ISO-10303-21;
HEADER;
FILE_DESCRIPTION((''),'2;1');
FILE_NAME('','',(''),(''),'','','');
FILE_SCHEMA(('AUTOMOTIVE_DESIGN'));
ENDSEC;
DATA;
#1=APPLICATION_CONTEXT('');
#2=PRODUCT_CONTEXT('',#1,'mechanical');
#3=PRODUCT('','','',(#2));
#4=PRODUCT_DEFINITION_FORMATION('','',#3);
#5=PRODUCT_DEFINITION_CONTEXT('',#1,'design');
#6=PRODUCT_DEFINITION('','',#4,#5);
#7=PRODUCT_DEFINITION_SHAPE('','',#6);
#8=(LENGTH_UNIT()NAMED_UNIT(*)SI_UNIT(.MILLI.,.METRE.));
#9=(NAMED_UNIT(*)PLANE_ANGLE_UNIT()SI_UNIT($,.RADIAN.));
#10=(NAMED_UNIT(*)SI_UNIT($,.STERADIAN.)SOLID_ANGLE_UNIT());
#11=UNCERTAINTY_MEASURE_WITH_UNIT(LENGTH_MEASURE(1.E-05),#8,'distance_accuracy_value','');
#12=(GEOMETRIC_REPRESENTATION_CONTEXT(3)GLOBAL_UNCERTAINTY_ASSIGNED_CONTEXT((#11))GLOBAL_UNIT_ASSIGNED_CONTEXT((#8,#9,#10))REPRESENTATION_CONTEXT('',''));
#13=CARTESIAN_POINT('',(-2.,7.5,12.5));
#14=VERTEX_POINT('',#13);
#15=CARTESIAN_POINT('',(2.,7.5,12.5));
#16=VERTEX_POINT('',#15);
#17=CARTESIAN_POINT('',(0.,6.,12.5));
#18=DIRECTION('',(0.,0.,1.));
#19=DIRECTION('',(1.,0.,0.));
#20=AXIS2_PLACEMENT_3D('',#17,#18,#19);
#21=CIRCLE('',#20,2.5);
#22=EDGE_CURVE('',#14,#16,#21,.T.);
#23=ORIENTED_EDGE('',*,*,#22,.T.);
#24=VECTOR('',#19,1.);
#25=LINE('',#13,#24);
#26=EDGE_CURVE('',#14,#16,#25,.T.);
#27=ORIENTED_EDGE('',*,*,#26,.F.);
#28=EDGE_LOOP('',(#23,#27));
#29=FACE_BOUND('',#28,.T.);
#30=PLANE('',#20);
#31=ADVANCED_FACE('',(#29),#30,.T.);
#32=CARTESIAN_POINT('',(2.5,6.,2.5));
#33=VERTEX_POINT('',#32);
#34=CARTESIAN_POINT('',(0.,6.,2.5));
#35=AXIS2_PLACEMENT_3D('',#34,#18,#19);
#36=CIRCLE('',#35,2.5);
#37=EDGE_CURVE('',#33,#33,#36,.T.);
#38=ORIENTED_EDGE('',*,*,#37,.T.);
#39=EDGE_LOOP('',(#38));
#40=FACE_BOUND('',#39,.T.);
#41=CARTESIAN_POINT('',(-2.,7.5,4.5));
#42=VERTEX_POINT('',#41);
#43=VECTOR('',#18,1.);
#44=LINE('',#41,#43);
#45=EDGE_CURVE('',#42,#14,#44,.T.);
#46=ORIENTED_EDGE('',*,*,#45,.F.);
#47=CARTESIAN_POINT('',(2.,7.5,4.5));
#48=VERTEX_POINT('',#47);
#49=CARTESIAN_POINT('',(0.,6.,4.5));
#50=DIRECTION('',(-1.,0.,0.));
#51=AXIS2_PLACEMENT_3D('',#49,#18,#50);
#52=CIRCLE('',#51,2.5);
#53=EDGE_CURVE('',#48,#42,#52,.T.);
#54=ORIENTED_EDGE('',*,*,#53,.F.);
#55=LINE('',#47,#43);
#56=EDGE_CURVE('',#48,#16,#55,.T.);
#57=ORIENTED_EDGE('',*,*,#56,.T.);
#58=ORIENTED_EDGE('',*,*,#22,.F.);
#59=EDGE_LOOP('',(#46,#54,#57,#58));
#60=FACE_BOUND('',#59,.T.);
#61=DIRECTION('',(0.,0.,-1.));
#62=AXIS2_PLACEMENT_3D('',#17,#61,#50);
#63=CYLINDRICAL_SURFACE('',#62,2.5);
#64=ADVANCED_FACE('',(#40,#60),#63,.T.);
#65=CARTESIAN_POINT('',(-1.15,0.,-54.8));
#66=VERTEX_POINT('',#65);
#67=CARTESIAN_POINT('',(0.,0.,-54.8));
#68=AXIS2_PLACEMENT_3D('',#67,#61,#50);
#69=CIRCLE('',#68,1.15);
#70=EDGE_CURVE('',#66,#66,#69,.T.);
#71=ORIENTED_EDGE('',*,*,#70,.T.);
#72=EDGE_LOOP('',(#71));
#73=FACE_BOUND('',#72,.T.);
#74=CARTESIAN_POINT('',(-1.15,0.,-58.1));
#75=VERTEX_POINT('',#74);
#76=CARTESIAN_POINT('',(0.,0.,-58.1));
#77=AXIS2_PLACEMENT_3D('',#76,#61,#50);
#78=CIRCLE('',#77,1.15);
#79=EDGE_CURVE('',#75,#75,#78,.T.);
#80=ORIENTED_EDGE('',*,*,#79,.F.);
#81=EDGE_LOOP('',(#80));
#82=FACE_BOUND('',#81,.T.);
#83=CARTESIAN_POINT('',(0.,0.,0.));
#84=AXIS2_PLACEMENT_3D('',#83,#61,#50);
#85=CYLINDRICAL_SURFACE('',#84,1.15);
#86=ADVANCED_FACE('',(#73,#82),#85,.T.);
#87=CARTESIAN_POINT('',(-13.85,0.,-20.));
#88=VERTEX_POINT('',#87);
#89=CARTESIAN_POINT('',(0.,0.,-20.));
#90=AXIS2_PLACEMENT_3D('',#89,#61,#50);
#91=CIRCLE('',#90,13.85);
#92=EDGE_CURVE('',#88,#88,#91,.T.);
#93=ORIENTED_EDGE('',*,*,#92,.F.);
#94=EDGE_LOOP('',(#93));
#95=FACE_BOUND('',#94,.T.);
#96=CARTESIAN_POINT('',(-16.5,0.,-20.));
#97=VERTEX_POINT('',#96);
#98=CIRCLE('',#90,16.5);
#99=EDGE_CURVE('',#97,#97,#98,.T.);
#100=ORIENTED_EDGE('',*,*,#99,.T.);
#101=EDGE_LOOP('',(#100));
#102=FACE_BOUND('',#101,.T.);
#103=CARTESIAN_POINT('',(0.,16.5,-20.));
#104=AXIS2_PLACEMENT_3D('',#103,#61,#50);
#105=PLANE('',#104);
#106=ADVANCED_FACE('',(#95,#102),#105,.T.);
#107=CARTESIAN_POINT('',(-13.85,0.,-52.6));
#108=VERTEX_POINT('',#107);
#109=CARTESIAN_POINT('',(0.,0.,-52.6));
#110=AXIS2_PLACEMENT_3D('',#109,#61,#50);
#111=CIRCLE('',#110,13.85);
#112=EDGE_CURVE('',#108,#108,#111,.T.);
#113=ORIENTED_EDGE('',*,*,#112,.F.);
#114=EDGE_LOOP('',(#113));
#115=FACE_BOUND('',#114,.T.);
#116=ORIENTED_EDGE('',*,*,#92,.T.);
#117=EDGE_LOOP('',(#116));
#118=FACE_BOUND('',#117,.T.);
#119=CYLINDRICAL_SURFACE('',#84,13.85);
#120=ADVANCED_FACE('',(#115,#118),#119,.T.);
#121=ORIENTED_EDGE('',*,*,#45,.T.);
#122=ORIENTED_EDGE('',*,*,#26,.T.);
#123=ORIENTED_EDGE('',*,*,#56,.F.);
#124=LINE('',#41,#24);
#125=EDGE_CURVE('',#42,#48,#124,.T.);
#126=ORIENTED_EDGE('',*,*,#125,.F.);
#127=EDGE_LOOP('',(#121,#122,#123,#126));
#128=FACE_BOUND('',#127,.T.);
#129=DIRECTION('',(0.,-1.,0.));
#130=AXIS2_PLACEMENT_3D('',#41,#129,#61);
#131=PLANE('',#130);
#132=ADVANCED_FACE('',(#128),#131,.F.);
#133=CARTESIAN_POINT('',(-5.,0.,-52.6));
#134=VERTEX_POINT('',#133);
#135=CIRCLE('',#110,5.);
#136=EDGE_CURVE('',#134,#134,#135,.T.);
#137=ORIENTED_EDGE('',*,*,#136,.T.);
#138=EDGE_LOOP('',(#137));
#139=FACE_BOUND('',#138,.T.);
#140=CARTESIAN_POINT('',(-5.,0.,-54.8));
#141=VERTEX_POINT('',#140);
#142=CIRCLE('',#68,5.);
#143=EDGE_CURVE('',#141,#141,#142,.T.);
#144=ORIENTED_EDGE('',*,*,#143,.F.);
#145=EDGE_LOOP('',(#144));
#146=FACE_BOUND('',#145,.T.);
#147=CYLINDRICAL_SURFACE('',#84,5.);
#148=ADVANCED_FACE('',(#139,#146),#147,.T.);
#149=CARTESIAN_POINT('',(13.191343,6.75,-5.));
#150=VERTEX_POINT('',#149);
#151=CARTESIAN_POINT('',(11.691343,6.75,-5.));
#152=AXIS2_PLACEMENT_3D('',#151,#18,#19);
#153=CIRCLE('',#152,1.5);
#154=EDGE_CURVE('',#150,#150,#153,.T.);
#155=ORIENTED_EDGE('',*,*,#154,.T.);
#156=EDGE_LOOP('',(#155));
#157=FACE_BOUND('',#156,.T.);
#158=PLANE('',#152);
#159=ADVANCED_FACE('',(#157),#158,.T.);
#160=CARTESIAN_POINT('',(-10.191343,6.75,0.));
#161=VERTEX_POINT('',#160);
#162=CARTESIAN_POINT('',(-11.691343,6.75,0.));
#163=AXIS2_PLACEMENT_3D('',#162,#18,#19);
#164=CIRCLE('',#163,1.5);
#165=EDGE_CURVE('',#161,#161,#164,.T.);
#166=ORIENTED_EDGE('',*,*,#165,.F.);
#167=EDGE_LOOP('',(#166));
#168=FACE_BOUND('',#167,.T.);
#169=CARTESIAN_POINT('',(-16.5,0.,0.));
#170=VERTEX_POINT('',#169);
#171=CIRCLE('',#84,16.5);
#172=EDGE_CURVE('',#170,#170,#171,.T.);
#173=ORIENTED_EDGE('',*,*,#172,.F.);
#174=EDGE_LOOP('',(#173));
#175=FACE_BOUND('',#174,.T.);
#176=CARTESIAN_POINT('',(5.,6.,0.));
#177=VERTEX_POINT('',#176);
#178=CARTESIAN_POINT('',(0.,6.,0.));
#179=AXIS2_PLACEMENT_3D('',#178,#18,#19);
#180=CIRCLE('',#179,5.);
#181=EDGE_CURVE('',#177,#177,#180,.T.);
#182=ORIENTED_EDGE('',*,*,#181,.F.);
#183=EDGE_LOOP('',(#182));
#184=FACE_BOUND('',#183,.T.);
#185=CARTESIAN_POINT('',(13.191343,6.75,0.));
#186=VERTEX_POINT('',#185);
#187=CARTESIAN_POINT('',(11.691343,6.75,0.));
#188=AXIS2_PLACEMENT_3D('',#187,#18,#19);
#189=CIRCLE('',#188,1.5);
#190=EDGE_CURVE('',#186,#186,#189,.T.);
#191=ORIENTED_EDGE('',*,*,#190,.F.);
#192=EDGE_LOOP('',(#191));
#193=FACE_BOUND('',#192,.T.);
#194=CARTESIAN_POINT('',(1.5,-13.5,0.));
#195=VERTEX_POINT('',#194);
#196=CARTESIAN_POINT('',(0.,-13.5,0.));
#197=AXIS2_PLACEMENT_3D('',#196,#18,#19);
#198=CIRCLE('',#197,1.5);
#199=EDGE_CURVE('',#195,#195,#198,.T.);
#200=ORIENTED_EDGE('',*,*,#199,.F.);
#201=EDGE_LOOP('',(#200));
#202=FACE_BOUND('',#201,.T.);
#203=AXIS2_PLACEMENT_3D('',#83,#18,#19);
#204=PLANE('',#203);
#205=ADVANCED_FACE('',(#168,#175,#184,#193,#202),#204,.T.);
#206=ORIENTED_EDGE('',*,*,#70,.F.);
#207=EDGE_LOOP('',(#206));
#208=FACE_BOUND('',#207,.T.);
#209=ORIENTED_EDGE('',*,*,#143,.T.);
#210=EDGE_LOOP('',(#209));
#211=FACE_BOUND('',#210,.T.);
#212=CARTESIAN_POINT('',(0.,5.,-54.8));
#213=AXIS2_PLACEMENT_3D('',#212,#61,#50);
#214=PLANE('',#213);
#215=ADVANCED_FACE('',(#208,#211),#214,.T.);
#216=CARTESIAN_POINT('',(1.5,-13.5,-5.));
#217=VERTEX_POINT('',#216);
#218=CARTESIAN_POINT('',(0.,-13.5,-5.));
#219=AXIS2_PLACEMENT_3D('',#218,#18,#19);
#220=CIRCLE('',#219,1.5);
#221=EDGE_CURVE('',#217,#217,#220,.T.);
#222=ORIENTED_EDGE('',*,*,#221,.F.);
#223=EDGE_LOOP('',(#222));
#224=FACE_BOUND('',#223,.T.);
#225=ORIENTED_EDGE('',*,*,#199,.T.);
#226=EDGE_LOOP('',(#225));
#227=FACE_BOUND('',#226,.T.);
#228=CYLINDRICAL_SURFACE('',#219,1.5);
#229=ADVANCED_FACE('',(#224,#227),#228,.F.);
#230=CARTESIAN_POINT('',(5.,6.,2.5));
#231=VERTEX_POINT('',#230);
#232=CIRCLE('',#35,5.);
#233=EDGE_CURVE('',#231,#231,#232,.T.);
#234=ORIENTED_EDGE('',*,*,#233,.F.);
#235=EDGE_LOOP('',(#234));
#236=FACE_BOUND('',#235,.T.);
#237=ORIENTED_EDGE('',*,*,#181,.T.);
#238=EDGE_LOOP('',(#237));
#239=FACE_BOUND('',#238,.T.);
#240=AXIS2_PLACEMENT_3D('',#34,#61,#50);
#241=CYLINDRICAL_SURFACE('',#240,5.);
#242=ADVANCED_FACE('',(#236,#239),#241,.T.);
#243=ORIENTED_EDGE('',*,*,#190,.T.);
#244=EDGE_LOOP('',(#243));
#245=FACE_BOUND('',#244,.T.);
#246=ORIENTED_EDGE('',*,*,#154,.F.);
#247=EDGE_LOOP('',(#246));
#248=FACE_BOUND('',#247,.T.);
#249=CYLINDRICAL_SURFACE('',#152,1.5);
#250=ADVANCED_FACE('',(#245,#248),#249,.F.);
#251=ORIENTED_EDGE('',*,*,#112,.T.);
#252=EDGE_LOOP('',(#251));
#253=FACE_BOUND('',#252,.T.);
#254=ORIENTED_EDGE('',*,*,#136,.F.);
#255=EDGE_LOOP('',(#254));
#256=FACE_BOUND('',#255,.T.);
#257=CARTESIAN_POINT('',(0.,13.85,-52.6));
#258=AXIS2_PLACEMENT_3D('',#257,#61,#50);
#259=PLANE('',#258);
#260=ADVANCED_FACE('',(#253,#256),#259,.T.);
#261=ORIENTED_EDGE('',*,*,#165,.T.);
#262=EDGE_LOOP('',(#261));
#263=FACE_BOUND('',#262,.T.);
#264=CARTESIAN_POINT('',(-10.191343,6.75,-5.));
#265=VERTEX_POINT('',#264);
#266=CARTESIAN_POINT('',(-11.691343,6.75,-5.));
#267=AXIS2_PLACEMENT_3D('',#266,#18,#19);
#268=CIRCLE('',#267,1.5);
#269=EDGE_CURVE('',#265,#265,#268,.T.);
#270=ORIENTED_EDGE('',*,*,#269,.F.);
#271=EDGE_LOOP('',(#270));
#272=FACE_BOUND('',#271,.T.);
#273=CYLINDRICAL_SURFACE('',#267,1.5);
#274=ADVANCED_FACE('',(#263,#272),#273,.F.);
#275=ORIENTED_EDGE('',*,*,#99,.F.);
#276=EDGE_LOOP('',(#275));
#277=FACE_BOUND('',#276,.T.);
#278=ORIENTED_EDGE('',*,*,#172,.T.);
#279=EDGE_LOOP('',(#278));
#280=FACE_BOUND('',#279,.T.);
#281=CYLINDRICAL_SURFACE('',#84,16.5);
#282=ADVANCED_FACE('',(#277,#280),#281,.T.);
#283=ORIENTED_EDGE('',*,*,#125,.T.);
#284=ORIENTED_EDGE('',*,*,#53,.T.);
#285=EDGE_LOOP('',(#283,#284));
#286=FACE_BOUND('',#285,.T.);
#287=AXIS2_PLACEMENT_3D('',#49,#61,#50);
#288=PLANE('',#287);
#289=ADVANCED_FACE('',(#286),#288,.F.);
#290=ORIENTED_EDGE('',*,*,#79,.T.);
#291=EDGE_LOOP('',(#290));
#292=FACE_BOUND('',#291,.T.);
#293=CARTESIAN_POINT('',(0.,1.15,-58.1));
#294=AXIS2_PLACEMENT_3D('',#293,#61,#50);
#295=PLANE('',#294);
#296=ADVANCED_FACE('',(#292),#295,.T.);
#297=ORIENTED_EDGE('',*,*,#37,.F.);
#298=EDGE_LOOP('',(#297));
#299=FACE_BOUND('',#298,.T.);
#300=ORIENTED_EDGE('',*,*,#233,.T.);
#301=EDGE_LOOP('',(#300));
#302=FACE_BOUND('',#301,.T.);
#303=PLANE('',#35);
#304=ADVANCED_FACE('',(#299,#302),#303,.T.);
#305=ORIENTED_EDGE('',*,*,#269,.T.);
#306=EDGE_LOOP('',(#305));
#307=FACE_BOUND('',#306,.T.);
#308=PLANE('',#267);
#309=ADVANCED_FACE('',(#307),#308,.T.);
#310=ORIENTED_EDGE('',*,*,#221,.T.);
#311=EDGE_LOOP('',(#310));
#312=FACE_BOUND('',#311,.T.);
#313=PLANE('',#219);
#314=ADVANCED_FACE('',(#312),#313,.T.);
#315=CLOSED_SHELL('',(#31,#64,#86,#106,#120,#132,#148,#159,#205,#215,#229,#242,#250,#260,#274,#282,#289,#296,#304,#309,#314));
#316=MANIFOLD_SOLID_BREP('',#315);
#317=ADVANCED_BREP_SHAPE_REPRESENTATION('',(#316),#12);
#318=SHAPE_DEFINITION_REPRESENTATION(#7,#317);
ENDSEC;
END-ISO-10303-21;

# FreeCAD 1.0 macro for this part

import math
import FreeCAD as App
import Part
import Sketcher
from FreeCAD import Vector
Q = App.Units.Quantity


def add_polygon(sketch, points):
    """Adds a closed chain of lines whose ends are joined by coincident constraints."""
    first, n = sketch.GeometryCount, len(points)
    for a, b in zip(points, points[1:] + points[:1]):
        sketch.addGeometry(Part.LineSegment(App.Vector(*a, 0), App.Vector(*b, 0)), False)
    for i in range(n):
        sketch.addConstraint(Sketcher.Constraint("Coincident", first + i, 2, first + (i + 1) % n, 1))

doc = App.newDocument("Part")
body = doc.addObject("PartDesign::Body", "Body")

# Sketch on YZ plane
sketch1 = body.newObject("Sketcher::SketchObject", "Sketch")
sketch1.AttachmentSupport = (doc.getObject("YZ_Plane"), [""])
sketch1.MapMode = "FlatFace"
add_polygon(sketch1, [(16.5, 0), (0, 0), (0, -58.1), (1.1, -58.1), (1.1, -54.8), (5, -54.8), (5, -52.6), (13.8, -52.6), (13.8, -20), (16.5, -20)])  # lines 0-9
sketch1.addConstraint(Sketcher.Constraint("Horizontal", 0))
sketch1.addConstraint(Sketcher.Constraint("Vertical", 1))
sketch1.addConstraint(Sketcher.Constraint("Horizontal", 2))
sketch1.addConstraint(Sketcher.Constraint("Vertical", 3))
sketch1.addConstraint(Sketcher.Constraint("Horizontal", 4))
sketch1.addConstraint(Sketcher.Constraint("Vertical", 5))
sketch1.addConstraint(Sketcher.Constraint("Horizontal", 6))
sketch1.addConstraint(Sketcher.Constraint("Vertical", 7))
sketch1.addConstraint(Sketcher.Constraint("Horizontal", 8))
sketch1.addConstraint(Sketcher.Constraint("Vertical", 9))
sketch1.addConstraint(Sketcher.Constraint("Coincident", 0, 2, -1, 1))
sketch1.addConstraint(Sketcher.Constraint("DistanceY", 9, 1, 9, 2, Q("20 mm")))
sketch1.addConstraint(Sketcher.Constraint("DistanceX", 0, 2, 0, 1, Q("16.5 mm")))
sketch1.addConstraint(Sketcher.Constraint("DistanceY", 1, 2, 1, 1, Q("58.1 mm")))
sketch1.addConstraint(Sketcher.Constraint("DistanceY", 3, 1, 3, 2, Q("3.3 mm")))
sketch1.addConstraint(Sketcher.Constraint("DistanceY", 5, 1, 5, 2, Q("2.2 mm")))
sketch1.addConstraint(Sketcher.Constraint("DistanceX", -1, 1, 4, 2, Q("5 mm")))
sketch1.addConstraint(Sketcher.Constraint("DistanceX", 2, 1, 2, 2, Q("1.15 mm")))
sketch1.addConstraint(Sketcher.Constraint("DistanceX", 6, 1, 6, 2, Q("8.85 mm")))
revolution = body.newObject("PartDesign::Revolution", "Revolution")
revolution.Profile = sketch1
revolution.ReferenceAxis = (sketch1, ["V_Axis"])
revolution.Angle = 360

# Sketch on XY plane
sketch2 = body.newObject("Sketcher::SketchObject", "Sketch001")
sketch2.AttachmentSupport = (doc.getObject("XY_Plane"), [""])
sketch2.MapMode = "FlatFace"
sketch2.addGeometry(Part.Circle(Vector(0, 6, 0), Vector(0, 0, 1), 5), False)
sketch2.addConstraint(Sketcher.Constraint("PointOnObject", 0, 3, -2))
sketch2.addConstraint(Sketcher.Constraint("Diameter", 0, Q("10 mm")))
sketch2.addConstraint(Sketcher.Constraint("DistanceY", -1, 1, 0, 3, Q("6 mm")))
pad1 = body.newObject("PartDesign::Pad", "Pad")
pad1.Profile = sketch2
pad1.Length = 2.5

# Sketch on XY plane
sketch3 = body.newObject("Sketcher::SketchObject", "Sketch002")
sketch3.AttachmentSupport = (doc.getObject("XY_Plane"), [""])
sketch3.MapMode = "FlatFace"
sketch3.AttachmentOffset = App.Placement(Vector(0, 0, 2.5), App.Rotation())
sketch3.addGeometry(Part.Circle(Vector(0, 6, 0), Vector(0, 0, 1), 2.5), False)
sketch3.addConstraint(Sketcher.Constraint("PointOnObject", 0, 3, -2))
sketch3.addConstraint(Sketcher.Constraint("Diameter", 0, Q("5 mm")))
sketch3.addConstraint(Sketcher.Constraint("DistanceY", -1, 1, 0, 3, Q("6 mm")))
pad2 = body.newObject("PartDesign::Pad", "Pad001")
pad2.Profile = sketch3
pad2.Length = 10

# Sketch on XY plane
sketch4 = body.newObject("Sketcher::SketchObject", "Sketch003")
sketch4.AttachmentSupport = (doc.getObject("XY_Plane"), [""])
sketch4.MapMode = "FlatFace"
sketch4.AttachmentOffset = App.Placement(Vector(0, 0, 4.5), App.Rotation())
sketch4.addGeometry(Part.LineSegment(Vector(-2, 7.5, 0), Vector(2, 7.5, 0)), False)
sketch4.addGeometry(Part.ArcOfCircle(Part.Circle(Vector(0, 6, 0), Vector(0, 0, 1), 2.5), math.radians(37), math.radians(143)), False)
sketch4.addConstraint(Sketcher.Constraint("Coincident", 0, 1, 1, 2))
sketch4.addConstraint(Sketcher.Constraint("Coincident", 1, 1, 0, 2))
sketch4.addConstraint(Sketcher.Constraint("Horizontal", 0))
sketch4.addConstraint(Sketcher.Constraint("PointOnObject", 1, 3, -2))
sketch4.addConstraint(Sketcher.Constraint("Radius", 1, Q("2.5 mm")))
sketch4.addConstraint(Sketcher.Constraint("DistanceX", 0, 1, 0, 2, Q("4 mm")))
sketch4.addConstraint(Sketcher.Constraint("DistanceY", -1, 1, 1, 3, Q("6 mm")))
pocket1 = body.newObject("PartDesign::Pocket", "Pocket")
pocket1.Profile = sketch4
pocket1.Length = 8
pocket1.Reversed = True

# Sketch on XY plane
sketch5 = body.newObject("Sketcher::SketchObject", "Sketch004")
sketch5.AttachmentSupport = (doc.getObject("XY_Plane"), [""])
sketch5.MapMode = "FlatFace"
sketch5.addGeometry(Part.Circle(Vector(0, -13.5, 0), Vector(0, 0, 1), 1.5), False)
sketch5.addGeometry(Part.Circle(Vector(-11.7, 6.8, 0), Vector(0, 0, 1), 1.5), False)
sketch5.addGeometry(Part.Circle(Vector(11.7, 6.8, 0), Vector(0, 0, 1), 1.5), False)
sketch5.addConstraint(Sketcher.Constraint("Equal", 0, 1))
sketch5.addConstraint(Sketcher.Constraint("Equal", 1, 2))
sketch5.addConstraint(Sketcher.Constraint("Symmetric", 1, 3, 2, 3, -2))
sketch5.addConstraint(Sketcher.Constraint("PointOnObject", 0, 3, -2))
sketch5.addConstraint(Sketcher.Constraint("Diameter", 0, Q("3 mm")))
sketch5.addConstraint(Sketcher.Constraint("DistanceY", 0, 3, -1, 1, Q("13.5 mm")))
sketch5.addConstraint(Sketcher.Constraint("DistanceY", -1, 1, 1, 3, Q("6.75 mm")))
sketch5.addConstraint(Sketcher.Constraint("DistanceX", 1, 3, -1, 1, Q("11.691343 mm")))
pocket2 = body.newObject("PartDesign::Pocket", "Pocket001")
pocket2.Profile = sketch5
pocket2.Length = 5

doc.recompute()
